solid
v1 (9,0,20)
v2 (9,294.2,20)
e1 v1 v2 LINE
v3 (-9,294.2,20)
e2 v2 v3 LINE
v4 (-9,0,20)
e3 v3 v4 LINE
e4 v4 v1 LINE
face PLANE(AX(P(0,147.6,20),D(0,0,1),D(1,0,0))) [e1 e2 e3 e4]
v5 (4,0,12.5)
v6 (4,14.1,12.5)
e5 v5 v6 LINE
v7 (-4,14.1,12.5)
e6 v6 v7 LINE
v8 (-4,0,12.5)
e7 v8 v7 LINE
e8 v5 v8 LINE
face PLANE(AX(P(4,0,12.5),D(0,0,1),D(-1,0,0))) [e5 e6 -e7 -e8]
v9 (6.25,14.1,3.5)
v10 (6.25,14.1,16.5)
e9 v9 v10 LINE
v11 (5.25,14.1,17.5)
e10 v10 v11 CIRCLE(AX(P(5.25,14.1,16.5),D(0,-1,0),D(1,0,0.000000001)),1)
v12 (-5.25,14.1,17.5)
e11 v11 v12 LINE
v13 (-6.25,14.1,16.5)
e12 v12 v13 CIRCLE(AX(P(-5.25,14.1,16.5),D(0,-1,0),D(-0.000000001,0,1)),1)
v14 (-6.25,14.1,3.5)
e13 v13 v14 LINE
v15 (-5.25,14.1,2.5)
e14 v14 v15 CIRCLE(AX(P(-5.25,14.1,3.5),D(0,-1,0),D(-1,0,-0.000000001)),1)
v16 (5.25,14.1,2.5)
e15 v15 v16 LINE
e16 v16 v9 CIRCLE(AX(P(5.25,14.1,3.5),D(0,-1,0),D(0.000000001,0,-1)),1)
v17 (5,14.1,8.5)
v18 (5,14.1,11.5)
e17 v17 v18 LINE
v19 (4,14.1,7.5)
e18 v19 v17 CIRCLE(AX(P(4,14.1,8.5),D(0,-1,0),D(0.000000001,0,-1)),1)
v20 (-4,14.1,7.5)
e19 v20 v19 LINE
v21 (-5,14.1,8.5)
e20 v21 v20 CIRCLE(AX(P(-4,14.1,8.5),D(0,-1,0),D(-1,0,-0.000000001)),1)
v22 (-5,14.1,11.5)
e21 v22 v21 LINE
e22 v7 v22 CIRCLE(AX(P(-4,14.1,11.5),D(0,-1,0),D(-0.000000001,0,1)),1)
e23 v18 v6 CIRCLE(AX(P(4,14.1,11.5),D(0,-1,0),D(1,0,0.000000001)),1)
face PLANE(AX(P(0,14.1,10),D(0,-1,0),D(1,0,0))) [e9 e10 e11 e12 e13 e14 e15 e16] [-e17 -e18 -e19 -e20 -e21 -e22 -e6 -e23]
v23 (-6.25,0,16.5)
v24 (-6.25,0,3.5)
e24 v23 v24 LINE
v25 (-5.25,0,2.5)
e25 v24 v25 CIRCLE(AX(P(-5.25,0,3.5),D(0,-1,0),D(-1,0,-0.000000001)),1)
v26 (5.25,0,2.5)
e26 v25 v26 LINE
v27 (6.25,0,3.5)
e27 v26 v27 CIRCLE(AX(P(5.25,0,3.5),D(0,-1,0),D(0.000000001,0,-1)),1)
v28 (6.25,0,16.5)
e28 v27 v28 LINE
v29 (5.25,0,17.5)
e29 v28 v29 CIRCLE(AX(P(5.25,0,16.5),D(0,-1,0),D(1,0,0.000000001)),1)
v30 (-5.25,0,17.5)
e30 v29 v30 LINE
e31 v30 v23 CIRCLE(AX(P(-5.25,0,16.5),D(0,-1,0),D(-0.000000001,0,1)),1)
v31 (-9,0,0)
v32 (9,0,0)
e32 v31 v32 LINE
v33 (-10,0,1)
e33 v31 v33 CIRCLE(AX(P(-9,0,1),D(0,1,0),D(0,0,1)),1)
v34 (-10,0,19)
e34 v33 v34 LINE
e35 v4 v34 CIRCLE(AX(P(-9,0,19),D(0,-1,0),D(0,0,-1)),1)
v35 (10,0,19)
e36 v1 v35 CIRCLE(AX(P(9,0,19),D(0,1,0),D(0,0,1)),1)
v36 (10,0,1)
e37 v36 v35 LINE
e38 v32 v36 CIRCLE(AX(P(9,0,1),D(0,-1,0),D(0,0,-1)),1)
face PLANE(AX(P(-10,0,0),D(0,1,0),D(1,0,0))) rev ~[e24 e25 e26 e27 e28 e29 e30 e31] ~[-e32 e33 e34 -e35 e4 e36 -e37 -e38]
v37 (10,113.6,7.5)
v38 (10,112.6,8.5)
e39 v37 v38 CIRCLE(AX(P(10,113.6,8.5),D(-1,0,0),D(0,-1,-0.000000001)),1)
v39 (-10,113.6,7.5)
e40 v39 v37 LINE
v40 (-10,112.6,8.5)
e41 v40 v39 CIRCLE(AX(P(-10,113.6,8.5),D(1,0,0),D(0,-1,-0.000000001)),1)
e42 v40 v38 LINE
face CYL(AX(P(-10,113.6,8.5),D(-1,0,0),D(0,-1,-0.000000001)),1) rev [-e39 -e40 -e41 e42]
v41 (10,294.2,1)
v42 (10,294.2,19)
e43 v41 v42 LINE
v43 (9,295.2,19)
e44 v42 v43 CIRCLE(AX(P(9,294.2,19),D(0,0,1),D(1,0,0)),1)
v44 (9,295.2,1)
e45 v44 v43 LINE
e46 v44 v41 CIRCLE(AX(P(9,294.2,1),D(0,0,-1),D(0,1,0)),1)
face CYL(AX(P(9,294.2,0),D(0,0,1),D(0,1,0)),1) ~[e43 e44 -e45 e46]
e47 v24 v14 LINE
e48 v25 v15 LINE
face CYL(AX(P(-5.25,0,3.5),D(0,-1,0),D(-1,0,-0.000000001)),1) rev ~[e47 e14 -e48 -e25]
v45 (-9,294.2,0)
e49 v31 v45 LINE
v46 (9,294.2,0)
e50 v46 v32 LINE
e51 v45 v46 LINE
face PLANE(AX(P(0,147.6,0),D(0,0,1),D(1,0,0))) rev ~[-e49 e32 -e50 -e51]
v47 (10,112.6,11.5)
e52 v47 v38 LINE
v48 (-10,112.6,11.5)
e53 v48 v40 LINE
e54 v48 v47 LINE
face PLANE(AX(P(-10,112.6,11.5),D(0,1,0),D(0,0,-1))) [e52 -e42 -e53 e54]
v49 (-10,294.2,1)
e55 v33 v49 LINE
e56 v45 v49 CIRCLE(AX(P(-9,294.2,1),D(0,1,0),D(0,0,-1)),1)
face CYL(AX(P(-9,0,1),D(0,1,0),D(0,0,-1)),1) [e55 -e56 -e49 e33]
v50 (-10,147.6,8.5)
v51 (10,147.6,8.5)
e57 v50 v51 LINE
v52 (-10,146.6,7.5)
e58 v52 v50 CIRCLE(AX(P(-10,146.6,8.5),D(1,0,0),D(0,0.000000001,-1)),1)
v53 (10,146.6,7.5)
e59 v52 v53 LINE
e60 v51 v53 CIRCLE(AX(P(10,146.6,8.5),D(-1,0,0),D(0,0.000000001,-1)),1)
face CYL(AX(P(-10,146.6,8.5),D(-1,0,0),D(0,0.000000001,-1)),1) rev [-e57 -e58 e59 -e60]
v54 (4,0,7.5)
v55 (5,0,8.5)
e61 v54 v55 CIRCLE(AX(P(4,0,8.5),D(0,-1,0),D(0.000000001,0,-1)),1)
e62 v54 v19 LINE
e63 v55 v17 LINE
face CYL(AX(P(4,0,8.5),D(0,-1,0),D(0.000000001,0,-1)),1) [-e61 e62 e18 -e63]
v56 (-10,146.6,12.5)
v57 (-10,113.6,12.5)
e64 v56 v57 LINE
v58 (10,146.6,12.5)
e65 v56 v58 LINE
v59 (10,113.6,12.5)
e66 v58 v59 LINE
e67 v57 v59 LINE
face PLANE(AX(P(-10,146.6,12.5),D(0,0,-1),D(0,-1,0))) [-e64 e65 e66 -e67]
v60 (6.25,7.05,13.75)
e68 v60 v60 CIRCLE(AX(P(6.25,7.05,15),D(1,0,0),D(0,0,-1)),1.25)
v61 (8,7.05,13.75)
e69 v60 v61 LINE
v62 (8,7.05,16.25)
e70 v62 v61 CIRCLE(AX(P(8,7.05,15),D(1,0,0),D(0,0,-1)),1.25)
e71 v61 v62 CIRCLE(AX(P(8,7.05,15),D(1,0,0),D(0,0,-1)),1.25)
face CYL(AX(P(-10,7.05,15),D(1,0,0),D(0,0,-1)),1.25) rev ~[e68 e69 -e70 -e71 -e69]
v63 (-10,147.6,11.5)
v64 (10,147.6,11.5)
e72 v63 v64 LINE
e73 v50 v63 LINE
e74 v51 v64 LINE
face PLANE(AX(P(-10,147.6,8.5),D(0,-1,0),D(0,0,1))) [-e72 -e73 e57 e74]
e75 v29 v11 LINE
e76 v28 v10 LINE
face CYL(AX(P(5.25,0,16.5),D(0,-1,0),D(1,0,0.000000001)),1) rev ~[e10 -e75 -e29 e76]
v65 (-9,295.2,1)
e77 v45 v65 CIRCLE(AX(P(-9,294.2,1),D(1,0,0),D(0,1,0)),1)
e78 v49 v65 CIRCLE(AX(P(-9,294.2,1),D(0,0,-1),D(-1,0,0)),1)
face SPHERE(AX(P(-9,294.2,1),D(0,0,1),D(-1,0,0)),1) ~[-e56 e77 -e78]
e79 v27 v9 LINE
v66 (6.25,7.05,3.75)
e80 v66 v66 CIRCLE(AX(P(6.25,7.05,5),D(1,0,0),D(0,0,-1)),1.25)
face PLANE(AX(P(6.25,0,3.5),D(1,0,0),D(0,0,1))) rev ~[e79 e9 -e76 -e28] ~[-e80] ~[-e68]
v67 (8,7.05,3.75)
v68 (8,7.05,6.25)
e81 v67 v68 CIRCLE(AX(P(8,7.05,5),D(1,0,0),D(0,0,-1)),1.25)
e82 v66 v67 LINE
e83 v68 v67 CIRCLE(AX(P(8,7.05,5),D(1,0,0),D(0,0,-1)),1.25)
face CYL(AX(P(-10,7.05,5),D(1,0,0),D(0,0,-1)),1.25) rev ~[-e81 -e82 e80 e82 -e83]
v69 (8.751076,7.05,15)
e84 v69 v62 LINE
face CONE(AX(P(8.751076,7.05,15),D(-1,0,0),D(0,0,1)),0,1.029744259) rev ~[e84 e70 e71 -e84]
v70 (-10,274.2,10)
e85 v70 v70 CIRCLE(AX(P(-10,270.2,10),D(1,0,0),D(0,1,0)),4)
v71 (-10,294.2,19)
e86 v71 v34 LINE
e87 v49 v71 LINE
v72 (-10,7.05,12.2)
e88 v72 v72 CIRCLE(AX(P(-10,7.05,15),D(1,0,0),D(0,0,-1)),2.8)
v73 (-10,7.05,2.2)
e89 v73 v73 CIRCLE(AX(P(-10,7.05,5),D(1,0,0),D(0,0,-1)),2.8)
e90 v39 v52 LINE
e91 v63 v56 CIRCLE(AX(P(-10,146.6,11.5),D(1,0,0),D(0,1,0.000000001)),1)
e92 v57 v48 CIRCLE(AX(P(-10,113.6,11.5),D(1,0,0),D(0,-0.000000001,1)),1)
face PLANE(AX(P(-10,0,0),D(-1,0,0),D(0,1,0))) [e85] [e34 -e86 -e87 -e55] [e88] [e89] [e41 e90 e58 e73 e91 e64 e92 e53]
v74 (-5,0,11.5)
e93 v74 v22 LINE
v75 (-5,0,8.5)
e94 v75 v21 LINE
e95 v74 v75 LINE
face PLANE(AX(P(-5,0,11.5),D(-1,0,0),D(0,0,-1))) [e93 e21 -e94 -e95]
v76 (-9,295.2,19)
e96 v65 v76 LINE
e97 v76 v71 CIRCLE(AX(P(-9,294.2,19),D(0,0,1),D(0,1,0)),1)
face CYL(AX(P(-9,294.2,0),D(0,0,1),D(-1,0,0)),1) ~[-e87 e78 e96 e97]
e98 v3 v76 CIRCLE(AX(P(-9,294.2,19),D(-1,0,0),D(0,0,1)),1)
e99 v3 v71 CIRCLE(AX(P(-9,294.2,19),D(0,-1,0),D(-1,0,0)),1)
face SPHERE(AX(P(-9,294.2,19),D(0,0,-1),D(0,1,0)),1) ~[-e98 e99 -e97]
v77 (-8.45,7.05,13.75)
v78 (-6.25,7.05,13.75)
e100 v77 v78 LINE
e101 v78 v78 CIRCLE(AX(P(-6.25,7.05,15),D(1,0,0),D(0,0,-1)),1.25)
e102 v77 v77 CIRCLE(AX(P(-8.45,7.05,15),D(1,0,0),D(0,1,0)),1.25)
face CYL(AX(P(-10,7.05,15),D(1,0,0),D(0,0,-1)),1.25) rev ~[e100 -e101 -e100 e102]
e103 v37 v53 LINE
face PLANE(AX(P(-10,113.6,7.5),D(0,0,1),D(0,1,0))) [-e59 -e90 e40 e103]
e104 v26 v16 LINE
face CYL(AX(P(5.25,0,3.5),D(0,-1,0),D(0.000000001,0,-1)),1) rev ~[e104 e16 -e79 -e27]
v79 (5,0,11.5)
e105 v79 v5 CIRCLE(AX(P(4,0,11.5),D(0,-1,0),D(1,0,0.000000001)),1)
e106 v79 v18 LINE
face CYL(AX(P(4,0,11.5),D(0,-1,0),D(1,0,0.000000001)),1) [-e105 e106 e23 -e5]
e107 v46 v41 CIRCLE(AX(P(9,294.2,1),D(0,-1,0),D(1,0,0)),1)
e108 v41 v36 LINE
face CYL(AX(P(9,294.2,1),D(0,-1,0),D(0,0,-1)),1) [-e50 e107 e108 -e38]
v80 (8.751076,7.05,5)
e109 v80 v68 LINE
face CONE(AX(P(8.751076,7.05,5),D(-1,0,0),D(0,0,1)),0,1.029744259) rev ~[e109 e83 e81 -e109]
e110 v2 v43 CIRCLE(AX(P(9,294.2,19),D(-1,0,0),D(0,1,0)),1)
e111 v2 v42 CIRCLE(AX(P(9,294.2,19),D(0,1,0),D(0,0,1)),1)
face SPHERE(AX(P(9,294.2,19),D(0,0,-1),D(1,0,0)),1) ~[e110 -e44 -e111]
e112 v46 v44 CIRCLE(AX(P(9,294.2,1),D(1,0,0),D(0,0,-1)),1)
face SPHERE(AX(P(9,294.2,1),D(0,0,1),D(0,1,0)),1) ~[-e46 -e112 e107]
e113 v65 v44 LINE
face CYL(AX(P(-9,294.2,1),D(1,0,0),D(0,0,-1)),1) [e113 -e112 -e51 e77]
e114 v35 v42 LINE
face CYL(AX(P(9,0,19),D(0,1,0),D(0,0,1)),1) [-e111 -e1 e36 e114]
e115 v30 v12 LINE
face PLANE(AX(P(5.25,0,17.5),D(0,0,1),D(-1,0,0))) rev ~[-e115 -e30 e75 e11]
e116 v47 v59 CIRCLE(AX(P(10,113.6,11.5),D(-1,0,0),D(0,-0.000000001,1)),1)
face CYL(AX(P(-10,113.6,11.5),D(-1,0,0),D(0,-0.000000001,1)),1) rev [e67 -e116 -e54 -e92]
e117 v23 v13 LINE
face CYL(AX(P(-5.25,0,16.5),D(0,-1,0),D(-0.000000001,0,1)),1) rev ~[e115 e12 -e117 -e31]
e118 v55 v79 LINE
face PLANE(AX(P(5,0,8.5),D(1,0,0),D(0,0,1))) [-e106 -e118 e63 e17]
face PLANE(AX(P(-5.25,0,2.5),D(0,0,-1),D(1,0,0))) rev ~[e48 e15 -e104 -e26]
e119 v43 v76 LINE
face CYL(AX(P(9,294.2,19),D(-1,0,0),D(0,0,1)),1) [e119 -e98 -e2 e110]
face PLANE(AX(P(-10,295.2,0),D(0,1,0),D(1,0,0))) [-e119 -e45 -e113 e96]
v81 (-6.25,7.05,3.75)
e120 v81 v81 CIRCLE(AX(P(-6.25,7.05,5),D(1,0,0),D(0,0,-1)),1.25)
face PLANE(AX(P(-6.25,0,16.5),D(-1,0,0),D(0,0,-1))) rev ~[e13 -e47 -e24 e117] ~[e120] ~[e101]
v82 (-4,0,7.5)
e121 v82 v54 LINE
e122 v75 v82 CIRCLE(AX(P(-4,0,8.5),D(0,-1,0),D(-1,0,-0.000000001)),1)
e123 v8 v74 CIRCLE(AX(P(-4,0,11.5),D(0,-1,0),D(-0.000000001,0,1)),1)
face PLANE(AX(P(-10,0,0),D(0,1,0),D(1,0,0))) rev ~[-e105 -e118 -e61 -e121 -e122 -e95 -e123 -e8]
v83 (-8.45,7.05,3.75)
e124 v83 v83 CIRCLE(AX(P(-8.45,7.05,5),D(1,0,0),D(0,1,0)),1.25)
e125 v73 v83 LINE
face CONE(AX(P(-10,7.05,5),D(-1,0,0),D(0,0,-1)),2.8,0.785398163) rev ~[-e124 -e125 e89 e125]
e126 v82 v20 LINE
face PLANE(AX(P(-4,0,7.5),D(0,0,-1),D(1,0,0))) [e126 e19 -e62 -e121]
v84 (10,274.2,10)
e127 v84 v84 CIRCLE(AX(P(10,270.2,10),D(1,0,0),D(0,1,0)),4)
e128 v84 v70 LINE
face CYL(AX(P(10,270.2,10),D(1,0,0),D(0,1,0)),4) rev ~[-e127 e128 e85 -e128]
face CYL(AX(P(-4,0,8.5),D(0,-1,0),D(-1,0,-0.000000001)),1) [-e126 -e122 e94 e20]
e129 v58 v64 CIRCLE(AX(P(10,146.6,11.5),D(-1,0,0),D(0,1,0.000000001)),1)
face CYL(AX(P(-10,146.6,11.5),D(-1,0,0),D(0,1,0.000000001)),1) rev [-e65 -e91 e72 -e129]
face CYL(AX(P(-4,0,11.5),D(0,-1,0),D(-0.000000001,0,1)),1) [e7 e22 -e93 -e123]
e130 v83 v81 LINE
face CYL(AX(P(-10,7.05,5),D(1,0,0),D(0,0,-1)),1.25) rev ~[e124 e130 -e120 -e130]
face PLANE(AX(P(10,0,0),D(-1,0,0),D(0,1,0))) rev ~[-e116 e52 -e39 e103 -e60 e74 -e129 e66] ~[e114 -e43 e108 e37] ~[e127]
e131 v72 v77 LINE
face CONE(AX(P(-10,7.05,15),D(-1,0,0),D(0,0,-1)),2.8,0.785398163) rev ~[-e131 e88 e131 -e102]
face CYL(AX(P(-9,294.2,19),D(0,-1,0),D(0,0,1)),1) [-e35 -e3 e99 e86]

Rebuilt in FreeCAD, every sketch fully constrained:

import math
import FreeCAD as App
import Part
import Sketcher


def edges_at(feature, points):
    """Names of the edges that pass closest to the given points."""
    edges = feature.Shape.Edges
    near = lambda p: min(range(len(edges)), key=lambda i: edges[i].distToShape(Part.Vertex(*p))[0])
    return sorted({f"Edge{near(p) + 1}" for p in points})


def add_polygon(sketch, points):
    """Adds a closed chain of lines whose ends are joined by coincident constraints."""
    first, n = sketch.GeometryCount, len(points)
    for a, b in zip(points, points[1:] + points[:1]):
        sketch.addGeometry(Part.LineSegment(App.Vector(*a, 0), App.Vector(*b, 0)), False)
    for i in range(n):
        sketch.addConstraint(Sketcher.Constraint("Coincident", first + i, 2, first + (i + 1) % n, 1))

doc = App.newDocument("Part")
body = doc.addObject("PartDesign::Body", "Body")

# Sketch on XY plane
sketch1 = body.newObject("Sketcher::SketchObject", "Sketch")
sketch1.AttachmentSupport = (doc.getObject("XY_Plane"), [""])
sketch1.MapMode = "FlatFace"
add_polygon(sketch1, [(-10, 295), (-10, 0), (10, 0), (10, 295)])  # lines 0-3
sketch1.addConstraint(Sketcher.Constraint("Vertical", 0))
sketch1.addConstraint(Sketcher.Constraint("Horizontal", 1))
sketch1.addConstraint(Sketcher.Constraint("Vertical", 2))
sketch1.addConstraint(Sketcher.Constraint("Horizontal", 3))
sketch1.addConstraint(Sketcher.Constraint("Symmetric", 0, 2, 1, 2, -1, 1))
sketch1.addConstraint(Sketcher.Constraint("DistanceX", 1, 1, 1, 2, 20.0))
sketch1.addConstraint(Sketcher.Constraint("DistanceY", 0, 2, 0, 1, 295.2))
pad1 = body.newObject("PartDesign::Pad", "Pad")
pad1.Profile = sketch1
pad1.Length = 20

# Sketch on YZ plane
sketch2 = body.newObject("Sketcher::SketchObject", "Sketch001")
sketch2.AttachmentSupport = (doc.getObject("YZ_Plane"), [""])
sketch2.MapMode = "FlatFace"
sketch2.AttachmentOffset = App.Placement(App.Vector(0, 0, 10), App.Rotation())
sketch2.addGeometry(Part.Circle(App.Vector(270.2, 10, 0), App.Vector(0, 0, 1), 4), False)
sketch2.addConstraint(Sketcher.Constraint("Diameter", 0, 8.0))
sketch2.addConstraint(Sketcher.Constraint("DistanceY", -1, 1, 0, 3, 10.0))
sketch2.addConstraint(Sketcher.Constraint("DistanceX", -1, 1, 0, 3, 270.2))
pocket1 = body.newObject("PartDesign::Pocket", "Pocket")
pocket1.Profile = sketch2
pocket1.Type = "UpToFirst"

# Sketch on XZ plane
sketch3 = body.newObject("Sketcher::SketchObject", "Sketch002")
sketch3.AttachmentSupport = (doc.getObject("XZ_Plane"), [""])
sketch3.MapMode = "FlatFace"
sketch3.addGeometry(Part.LineSegment(App.Vector(-5.2, 2.5, 0), App.Vector(5.2, 2.5, 0)), False)
sketch3.addGeometry(Part.ArcOfCircle(Part.Circle(App.Vector(5.2, 3.5, 0), App.Vector(0, 0, 1), 1), math.radians(-90), math.radians(0)), False)
sketch3.addGeometry(Part.LineSegment(App.Vector(6.2, 3.5, 0), App.Vector(6.2, 16.5, 0)), False)
sketch3.addGeometry(Part.ArcOfCircle(Part.Circle(App.Vector(5.2, 16.5, 0), App.Vector(0, 0, 1), 1), math.radians(0), math.radians(90)), False)
sketch3.addGeometry(Part.LineSegment(App.Vector(5.2, 17.5, 0), App.Vector(-5.2, 17.5, 0)), False)
sketch3.addGeometry(Part.ArcOfCircle(Part.Circle(App.Vector(-5.2, 16.5, 0), App.Vector(0, 0, 1), 1), math.radians(90), math.radians(180)), False)
sketch3.addGeometry(Part.LineSegment(App.Vector(-6.2, 16.5, 0), App.Vector(-6.2, 3.5, 0)), False)
sketch3.addGeometry(Part.ArcOfCircle(Part.Circle(App.Vector(-5.2, 3.5, 0), App.Vector(0, 0, 1), 1), math.radians(-180), math.radians(-90)), False)
sketch3.addGeometry(Part.LineSegment(App.Vector(4, 7.5, 0), App.Vector(-4, 7.5, 0)), False)
sketch3.addGeometry(Part.ArcOfCircle(Part.Circle(App.Vector(-4, 8.5, 0), App.Vector(0, 0, 1), 1), math.radians(-180), math.radians(-90)), False)
sketch3.addGeometry(Part.LineSegment(App.Vector(-5, 8.5, 0), App.Vector(-5, 11.5, 0)), False)
sketch3.addGeometry(Part.ArcOfCircle(Part.Circle(App.Vector(-4, 11.5, 0), App.Vector(0, 0, 1), 1), math.radians(90), math.radians(180)), False)
sketch3.addGeometry(Part.LineSegment(App.Vector(-4, 12.5, 0), App.Vector(4, 12.5, 0)), False)
sketch3.addGeometry(Part.ArcOfCircle(Part.Circle(App.Vector(4, 11.5, 0), App.Vector(0, 0, 1), 1), math.radians(0), math.radians(90)), False)
sketch3.addGeometry(Part.LineSegment(App.Vector(5, 11.5, 0), App.Vector(5, 8.5, 0)), False)
sketch3.addGeometry(Part.ArcOfCircle(Part.Circle(App.Vector(4, 8.5, 0), App.Vector(0, 0, 1), 1), math.radians(-90), math.radians(0)), False)
sketch3.addConstraint(Sketcher.Constraint("Tangent", 0, 2, 1, 1))
sketch3.addConstraint(Sketcher.Constraint("Tangent", 1, 2, 2, 1))
sketch3.addConstraint(Sketcher.Constraint("Tangent", 2, 2, 3, 1))
sketch3.addConstraint(Sketcher.Constraint("Tangent", 3, 2, 4, 1))
sketch3.addConstraint(Sketcher.Constraint("Tangent", 4, 2, 5, 1))
sketch3.addConstraint(Sketcher.Constraint("Tangent", 5, 2, 6, 1))
sketch3.addConstraint(Sketcher.Constraint("Tangent", 6, 2, 7, 1))
sketch3.addConstraint(Sketcher.Constraint("Tangent", 7, 2, 0, 1))
sketch3.addConstraint(Sketcher.Constraint("Tangent", 8, 2, 9, 2))
sketch3.addConstraint(Sketcher.Constraint("Tangent", 9, 1, 10, 1))
sketch3.addConstraint(Sketcher.Constraint("Tangent", 10, 2, 11, 2))
sketch3.addConstraint(Sketcher.Constraint("Tangent", 11, 1, 12, 1))
sketch3.addConstraint(Sketcher.Constraint("Tangent", 12, 2, 13, 2))
sketch3.addConstraint(Sketcher.Constraint("Tangent", 13, 1, 14, 1))
sketch3.addConstraint(Sketcher.Constraint("Tangent", 14, 2, 15, 2))
sketch3.addConstraint(Sketcher.Constraint("Tangent", 15, 1, 8, 1))
sketch3.addConstraint(Sketcher.Constraint("Horizontal", 0))
sketch3.addConstraint(Sketcher.Constraint("Vertical", 2))
sketch3.addConstraint(Sketcher.Constraint("Horizontal", 4))
sketch3.addConstraint(Sketcher.Constraint("Vertical", 6))
sketch3.addConstraint(Sketcher.Constraint("Horizontal", 8))
sketch3.addConstraint(Sketcher.Constraint("Vertical", 10))
sketch3.addConstraint(Sketcher.Constraint("Horizontal", 12))
sketch3.addConstraint(Sketcher.Constraint("Vertical", 14))
sketch3.addConstraint(Sketcher.Constraint("Equal", 1, 3))
sketch3.addConstraint(Sketcher.Constraint("Equal", 3, 5))
sketch3.addConstraint(Sketcher.Constraint("Equal", 5, 7))
sketch3.addConstraint(Sketcher.Constraint("Equal", 7, 9))
sketch3.addConstraint(Sketcher.Constraint("Equal", 9, 11))
sketch3.addConstraint(Sketcher.Constraint("Equal", 11, 13))
sketch3.addConstraint(Sketcher.Constraint("Equal", 13, 15))
sketch3.addConstraint(Sketcher.Constraint("Radius", 1, 1.0))
sketch3.addConstraint(Sketcher.Constraint("DistanceX", 8, 2, 8, 1, 8.0))
sketch3.addConstraint(Sketcher.Constraint("DistanceY", 2, 1, 2, 2, 13.0))
sketch3.addConstraint(Sketcher.Constraint("DistanceY", 10, 1, 10, 2, 3.0))
sketch3.addConstraint(Sketcher.Constraint("DistanceX", 0, 1, 0, 2, 10.5))
sketch3.addConstraint(Sketcher.Constraint("DistanceX", 9, 3, -1, 1, 4.0))
sketch3.addConstraint(Sketcher.Constraint("DistanceY", 7, 3, 9, 3, 5.0))
sketch3.addConstraint(Sketcher.Constraint("DistanceY", -1, 1, 1, 3, 3.5))
sketch3.addConstraint(Sketcher.Constraint("DistanceX", -1, 1, 1, 3, 5.25))
pocket2 = body.newObject("PartDesign::Pocket", "Pocket001")
pocket2.Profile = sketch3
pocket2.Length = 14.1

# Sketch on YZ plane
sketch4 = body.newObject("Sketcher::SketchObject", "Sketch003")
sketch4.AttachmentSupport = (doc.getObject("YZ_Plane"), [""])
sketch4.MapMode = "FlatFace"
sketch4.AttachmentOffset = App.Placement(App.Vector(0, 0, -10), App.Rotation())
sketch4.addGeometry(Part.LineSegment(App.Vector(147.6, 11.5, 0), App.Vector(147.6, 8.5, 0)), False)
sketch4.addGeometry(Part.ArcOfCircle(Part.Circle(App.Vector(146.6, 8.5, 0), App.Vector(0, 0, 1), 1), math.radians(-90), math.radians(0)), False)
sketch4.addGeometry(Part.LineSegment(App.Vector(146.6, 7.5, 0), App.Vector(113.6, 7.5, 0)), False)
sketch4.addGeometry(Part.ArcOfCircle(Part.Circle(App.Vector(113.6, 8.5, 0), App.Vector(0, 0, 1), 1), math.radians(-180), math.radians(-90)), False)
sketch4.addGeometry(Part.LineSegment(App.Vector(112.6, 8.5, 0), App.Vector(112.6, 11.5, 0)), False)
sketch4.addGeometry(Part.ArcOfCircle(Part.Circle(App.Vector(113.6, 11.5, 0), App.Vector(0, 0, 1), 1), math.radians(90), math.radians(180)), False)
sketch4.addGeometry(Part.LineSegment(App.Vector(113.6, 12.5, 0), App.Vector(146.6, 12.5, 0)), False)
sketch4.addGeometry(Part.ArcOfCircle(Part.Circle(App.Vector(146.6, 11.5, 0), App.Vector(0, 0, 1), 1), math.radians(0), math.radians(90)), False)
sketch4.addConstraint(Sketcher.Constraint("Tangent", 0, 2, 1, 2))
sketch4.addConstraint(Sketcher.Constraint("Tangent", 1, 1, 2, 1))
sketch4.addConstraint(Sketcher.Constraint("Tangent", 2, 2, 3, 2))
sketch4.addConstraint(Sketcher.Constraint("Tangent", 3, 1, 4, 1))
sketch4.addConstraint(Sketcher.Constraint("Tangent", 4, 2, 5, 2))
sketch4.addConstraint(Sketcher.Constraint("Tangent", 5, 1, 6, 1))
sketch4.addConstraint(Sketcher.Constraint("Tangent", 6, 2, 7, 2))
sketch4.addConstraint(Sketcher.Constraint("Tangent", 7, 1, 0, 1))
sketch4.addConstraint(Sketcher.Constraint("Vertical", 0))
sketch4.addConstraint(Sketcher.Constraint("Horizontal", 2))
sketch4.addConstraint(Sketcher.Constraint("Vertical", 4))
sketch4.addConstraint(Sketcher.Constraint("Horizontal", 6))
sketch4.addConstraint(Sketcher.Constraint("Equal", 1, 3))
sketch4.addConstraint(Sketcher.Constraint("Equal", 3, 5))
sketch4.addConstraint(Sketcher.Constraint("Equal", 5, 7))
sketch4.addConstraint(Sketcher.Constraint("Radius", 1, 1.0))
sketch4.addConstraint(Sketcher.Constraint("DistanceX", 2, 2, 2, 1, 33.0))
sketch4.addConstraint(Sketcher.Constraint("DistanceY", 0, 2, 0, 1, 3.0))
sketch4.addConstraint(Sketcher.Constraint("DistanceX", -1, 1, 1, 3, 146.6))
sketch4.addConstraint(Sketcher.Constraint("DistanceY", -1, 1, 1, 3, 8.5))
pocket3 = body.newObject("PartDesign::Pocket", "Pocket002")
pocket3.Profile = sketch4
pocket3.Type = "ThroughAll"
pocket3.Reversed = True

# Sketch on YZ plane
sketch5 = body.newObject("Sketcher::SketchObject", "Sketch004")
sketch5.AttachmentSupport = (doc.getObject("YZ_Plane"), [""])
sketch5.MapMode = "FlatFace"
sketch5.AttachmentOffset = App.Placement(App.Vector(0, 0, -10), App.Rotation())
sketch5.addGeometry(Part.Circle(App.Vector(7, 15, 0), App.Vector(0, 0, 1), 1.2), False)
sketch5.addGeometry(Part.Circle(App.Vector(7, 5, 0), App.Vector(0, 0, 1), 1.2), False)
sketch5.addConstraint(Sketcher.Constraint("Equal", 0, 1))
sketch5.addConstraint(Sketcher.Constraint("Vertical", 0, 3, 1, 3))
sketch5.addConstraint(Sketcher.Constraint("Diameter", 0, 2.5))
sketch5.addConstraint(Sketcher.Constraint("DistanceY", -1, 1, 0, 3, 15.0))
sketch5.addConstraint(Sketcher.Constraint("DistanceY", -1, 1, 1, 3, 5.0))
sketch5.addConstraint(Sketcher.Constraint("DistanceX", -1, 1, 0, 3, 7.05))
doc.recompute()
hole = body.newObject("PartDesign::Hole", "Hole")
hole.Profile = sketch5
hole.ThreadType = "None"
hole.Diameter = 2.5
hole.DepthType = "Dimension"
hole.Depth = 18
hole.DrillPoint = "Angled"
hole.DrillPointAngle = 118
hole.HoleCutType = "Countersink"
hole.HoleCutDiameter = 5.6
hole.HoleCutCountersinkAngle = 90
hole.Reversed = True
doc.recompute()

fillet = body.newObject("PartDesign::Fillet", "Fillet")
fillet.Base = (hole, edges_at(hole, [(-10, 295.2, 10), (10, 295.2, 10)]))
fillet.Radius = 1
doc.recompute()

fillet2 = body.newObject("PartDesign::Fillet", "Fillet001")
fillet2.Base = (fillet, edges_at(fillet, [
    (10, 147.1, 20),
    (0, 295.2, 0),
    (0, 295.2, 20),
    (-10, 147.1, 0),
    (-9.707, 294.907, 0),
    (9.707, 294.907, 0),
    (-10, 147.1, 20),
    (-9.707, 294.907, 20),
    (9.707, 294.907, 20),
    (10, 147.1, 0),
]))
fillet2.Radius = 1

doc.recompute()
